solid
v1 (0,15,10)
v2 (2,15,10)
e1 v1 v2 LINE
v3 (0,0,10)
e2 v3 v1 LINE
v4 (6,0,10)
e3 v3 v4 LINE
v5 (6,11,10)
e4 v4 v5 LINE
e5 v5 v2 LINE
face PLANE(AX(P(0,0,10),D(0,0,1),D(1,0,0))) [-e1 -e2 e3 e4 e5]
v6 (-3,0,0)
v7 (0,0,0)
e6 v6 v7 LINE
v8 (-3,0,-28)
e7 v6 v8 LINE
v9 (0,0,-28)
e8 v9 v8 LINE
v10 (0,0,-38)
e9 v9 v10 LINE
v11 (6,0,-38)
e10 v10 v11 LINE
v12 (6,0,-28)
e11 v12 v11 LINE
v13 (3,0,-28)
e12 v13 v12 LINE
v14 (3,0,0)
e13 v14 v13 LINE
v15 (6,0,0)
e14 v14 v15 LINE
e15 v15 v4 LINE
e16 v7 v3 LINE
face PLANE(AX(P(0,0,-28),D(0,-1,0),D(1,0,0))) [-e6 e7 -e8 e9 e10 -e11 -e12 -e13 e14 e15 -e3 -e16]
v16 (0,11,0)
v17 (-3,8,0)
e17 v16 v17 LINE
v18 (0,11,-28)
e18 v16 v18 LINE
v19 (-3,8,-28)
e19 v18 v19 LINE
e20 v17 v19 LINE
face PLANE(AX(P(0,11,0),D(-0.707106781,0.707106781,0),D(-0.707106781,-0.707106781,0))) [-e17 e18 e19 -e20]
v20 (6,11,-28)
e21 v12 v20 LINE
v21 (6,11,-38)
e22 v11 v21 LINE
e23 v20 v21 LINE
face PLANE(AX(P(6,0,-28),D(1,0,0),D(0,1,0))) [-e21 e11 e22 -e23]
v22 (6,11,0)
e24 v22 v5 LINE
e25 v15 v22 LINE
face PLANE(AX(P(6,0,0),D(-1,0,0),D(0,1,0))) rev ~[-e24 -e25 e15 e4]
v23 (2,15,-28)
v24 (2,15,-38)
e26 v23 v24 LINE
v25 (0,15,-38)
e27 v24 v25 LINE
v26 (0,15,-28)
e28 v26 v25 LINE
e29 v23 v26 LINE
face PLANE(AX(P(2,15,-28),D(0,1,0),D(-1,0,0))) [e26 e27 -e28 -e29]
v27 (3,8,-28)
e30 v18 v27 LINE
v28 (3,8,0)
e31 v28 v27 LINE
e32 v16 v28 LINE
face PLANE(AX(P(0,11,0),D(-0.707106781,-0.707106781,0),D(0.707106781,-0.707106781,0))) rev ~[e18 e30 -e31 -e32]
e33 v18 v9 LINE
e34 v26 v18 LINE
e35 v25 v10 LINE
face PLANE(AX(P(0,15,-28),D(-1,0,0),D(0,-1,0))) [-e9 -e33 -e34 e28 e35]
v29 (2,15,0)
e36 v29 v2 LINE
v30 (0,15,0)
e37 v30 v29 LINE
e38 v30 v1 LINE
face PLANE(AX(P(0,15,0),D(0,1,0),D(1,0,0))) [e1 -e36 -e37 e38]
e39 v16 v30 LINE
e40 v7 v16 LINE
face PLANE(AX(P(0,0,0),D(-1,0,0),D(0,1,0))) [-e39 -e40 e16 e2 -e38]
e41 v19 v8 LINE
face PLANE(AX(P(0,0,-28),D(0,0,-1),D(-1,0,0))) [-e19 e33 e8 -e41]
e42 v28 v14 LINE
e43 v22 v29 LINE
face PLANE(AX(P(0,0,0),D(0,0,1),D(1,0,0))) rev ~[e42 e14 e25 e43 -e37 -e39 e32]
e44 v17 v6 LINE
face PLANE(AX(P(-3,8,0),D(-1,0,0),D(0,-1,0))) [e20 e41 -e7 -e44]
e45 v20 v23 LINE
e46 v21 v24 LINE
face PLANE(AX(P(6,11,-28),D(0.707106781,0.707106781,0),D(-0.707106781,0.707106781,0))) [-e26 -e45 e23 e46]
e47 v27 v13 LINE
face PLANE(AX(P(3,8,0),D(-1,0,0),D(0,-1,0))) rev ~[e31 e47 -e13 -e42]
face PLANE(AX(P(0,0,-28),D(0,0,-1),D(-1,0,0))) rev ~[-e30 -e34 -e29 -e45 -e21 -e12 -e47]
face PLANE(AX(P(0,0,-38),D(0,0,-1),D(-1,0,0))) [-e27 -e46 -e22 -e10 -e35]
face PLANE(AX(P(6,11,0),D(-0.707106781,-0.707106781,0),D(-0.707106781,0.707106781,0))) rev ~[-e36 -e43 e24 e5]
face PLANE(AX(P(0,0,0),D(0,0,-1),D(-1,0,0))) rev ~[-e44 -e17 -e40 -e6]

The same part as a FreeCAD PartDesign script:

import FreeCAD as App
import Part
import Sketcher
Q = App.Units.Quantity


def add_polygon(sketch, points):
    """Adds a closed chain of lines whose ends are joined by coincident constraints."""
    first, n = sketch.GeometryCount, len(points)
    for a, b in zip(points, points[1:] + points[:1]):
        sketch.addGeometry(Part.LineSegment(App.Vector(*a, 0), App.Vector(*b, 0)), False)
    for i in range(n):
        sketch.addConstraint(Sketcher.Constraint("Coincident", first + i, 2, first + (i + 1) % n, 1))

doc = App.newDocument("Part")
body = doc.addObject("PartDesign::Body", "Body")

# Sketch on XY plane
sketch1 = body.newObject("Sketcher::SketchObject", "Sketch")
sketch1.AttachmentSupport = (doc.getObject("XY_Plane"), [""])
sketch1.MapMode = "FlatFace"
add_polygon(sketch1, [(0, 15), (0, 0), (6, 0), (6, 11), (2, 15)])  # lines 0-4
sketch1.addConstraint(Sketcher.Constraint("Vertical", 0))
sketch1.addConstraint(Sketcher.Constraint("Horizontal", 1))
sketch1.addConstraint(Sketcher.Constraint("Vertical", 2))
sketch1.addConstraint(Sketcher.Constraint("Horizontal", 4))
sketch1.addConstraint(Sketcher.Constraint("Coincident", 0, 2, -1, 1))
sketch1.addConstraint(Sketcher.Constraint("DistanceX", 1, 1, 1, 2, Q("6 mm")))
sketch1.addConstraint(Sketcher.Constraint("DistanceX", 4, 2, 4, 1, Q("2 mm")))
sketch1.addConstraint(Sketcher.Constraint("DistanceY", 0, 2, 0, 1, Q("15 mm")))
sketch1.addConstraint(Sketcher.Constraint("DistanceY", 2, 1, 2, 2, Q("11 mm")))
pad1 = body.newObject("PartDesign::Pad", "Pad")
pad1.Profile = sketch1
pad1.Length = 10

# Sketch on XY plane
sketch2 = body.newObject("Sketcher::SketchObject", "Sketch001")
sketch2.AttachmentSupport = (doc.getObject("XY_Plane"), [""])
sketch2.MapMode = "FlatFace"
add_polygon(sketch2, [(-3, 8), (0, 11), (3, 8), (3, 0), (-3, 0)])  # lines 0-4
sketch2.addConstraint(Sketcher.Constraint("Vertical", 2))
sketch2.addConstraint(Sketcher.Constraint("Horizontal", 3))
sketch2.addConstraint(Sketcher.Constraint("Vertical", 4))
sketch2.addConstraint(Sketcher.Constraint("Symmetric", 2, 2, 3, 2, -1, 1))
sketch2.addConstraint(Sketcher.Constraint("PointOnObject", 0, 2, -2))
sketch2.addConstraint(Sketcher.Constraint("Perpendicular", 0, 1))
sketch2.addConstraint(Sketcher.Constraint("Horizontal", 1, 2, 4, 2))
sketch2.addConstraint(Sketcher.Constraint("DistanceX", 3, 2, 3, 1, Q("6 mm")))
sketch2.addConstraint(Sketcher.Constraint("DistanceY", 2, 2, 2, 1, Q("8 mm")))
pad2 = body.newObject("PartDesign::Pad", "Pad001")
pad2.Profile = sketch2
pad2.Length = 28
pad2.Reversed = True

# Sketch on XY plane
sketch3 = body.newObject("Sketcher::SketchObject", "Sketch002")
sketch3.AttachmentSupport = (doc.getObject("XY_Plane"), [""])
sketch3.MapMode = "FlatFace"
sketch3.AttachmentOffset = App.Placement(App.Vector(0, 0, -28), App.Rotation())
add_polygon(sketch3, [(0, 0), (0, 15), (2, 15), (6, 11), (6, 0)])  # lines 0-4
sketch3.addConstraint(Sketcher.Constraint("Vertical", 0))
sketch3.addConstraint(Sketcher.Constraint("Horizontal", 1))
sketch3.addConstraint(Sketcher.Constraint("Vertical", 3))
sketch3.addConstraint(Sketcher.Constraint("Horizontal", 4))
sketch3.addConstraint(Sketcher.Constraint("Coincident", 4, 2, -1, 1))
sketch3.addConstraint(Sketcher.Constraint("DistanceX", 1, 1, 1, 2, Q("2 mm")))
sketch3.addConstraint(Sketcher.Constraint("DistanceX", 4, 2, 4, 1, Q("6 mm")))
sketch3.addConstraint(Sketcher.Constraint("DistanceY", 0, 1, 0, 2, Q("15 mm")))
sketch3.addConstraint(Sketcher.Constraint("DistanceY", 3, 2, 3, 1, Q("11 mm")))
pad3 = body.newObject("PartDesign::Pad", "Pad002")
pad3.Profile = sketch3
pad3.Length = 10
pad3.Reversed = True

doc.recompute()
